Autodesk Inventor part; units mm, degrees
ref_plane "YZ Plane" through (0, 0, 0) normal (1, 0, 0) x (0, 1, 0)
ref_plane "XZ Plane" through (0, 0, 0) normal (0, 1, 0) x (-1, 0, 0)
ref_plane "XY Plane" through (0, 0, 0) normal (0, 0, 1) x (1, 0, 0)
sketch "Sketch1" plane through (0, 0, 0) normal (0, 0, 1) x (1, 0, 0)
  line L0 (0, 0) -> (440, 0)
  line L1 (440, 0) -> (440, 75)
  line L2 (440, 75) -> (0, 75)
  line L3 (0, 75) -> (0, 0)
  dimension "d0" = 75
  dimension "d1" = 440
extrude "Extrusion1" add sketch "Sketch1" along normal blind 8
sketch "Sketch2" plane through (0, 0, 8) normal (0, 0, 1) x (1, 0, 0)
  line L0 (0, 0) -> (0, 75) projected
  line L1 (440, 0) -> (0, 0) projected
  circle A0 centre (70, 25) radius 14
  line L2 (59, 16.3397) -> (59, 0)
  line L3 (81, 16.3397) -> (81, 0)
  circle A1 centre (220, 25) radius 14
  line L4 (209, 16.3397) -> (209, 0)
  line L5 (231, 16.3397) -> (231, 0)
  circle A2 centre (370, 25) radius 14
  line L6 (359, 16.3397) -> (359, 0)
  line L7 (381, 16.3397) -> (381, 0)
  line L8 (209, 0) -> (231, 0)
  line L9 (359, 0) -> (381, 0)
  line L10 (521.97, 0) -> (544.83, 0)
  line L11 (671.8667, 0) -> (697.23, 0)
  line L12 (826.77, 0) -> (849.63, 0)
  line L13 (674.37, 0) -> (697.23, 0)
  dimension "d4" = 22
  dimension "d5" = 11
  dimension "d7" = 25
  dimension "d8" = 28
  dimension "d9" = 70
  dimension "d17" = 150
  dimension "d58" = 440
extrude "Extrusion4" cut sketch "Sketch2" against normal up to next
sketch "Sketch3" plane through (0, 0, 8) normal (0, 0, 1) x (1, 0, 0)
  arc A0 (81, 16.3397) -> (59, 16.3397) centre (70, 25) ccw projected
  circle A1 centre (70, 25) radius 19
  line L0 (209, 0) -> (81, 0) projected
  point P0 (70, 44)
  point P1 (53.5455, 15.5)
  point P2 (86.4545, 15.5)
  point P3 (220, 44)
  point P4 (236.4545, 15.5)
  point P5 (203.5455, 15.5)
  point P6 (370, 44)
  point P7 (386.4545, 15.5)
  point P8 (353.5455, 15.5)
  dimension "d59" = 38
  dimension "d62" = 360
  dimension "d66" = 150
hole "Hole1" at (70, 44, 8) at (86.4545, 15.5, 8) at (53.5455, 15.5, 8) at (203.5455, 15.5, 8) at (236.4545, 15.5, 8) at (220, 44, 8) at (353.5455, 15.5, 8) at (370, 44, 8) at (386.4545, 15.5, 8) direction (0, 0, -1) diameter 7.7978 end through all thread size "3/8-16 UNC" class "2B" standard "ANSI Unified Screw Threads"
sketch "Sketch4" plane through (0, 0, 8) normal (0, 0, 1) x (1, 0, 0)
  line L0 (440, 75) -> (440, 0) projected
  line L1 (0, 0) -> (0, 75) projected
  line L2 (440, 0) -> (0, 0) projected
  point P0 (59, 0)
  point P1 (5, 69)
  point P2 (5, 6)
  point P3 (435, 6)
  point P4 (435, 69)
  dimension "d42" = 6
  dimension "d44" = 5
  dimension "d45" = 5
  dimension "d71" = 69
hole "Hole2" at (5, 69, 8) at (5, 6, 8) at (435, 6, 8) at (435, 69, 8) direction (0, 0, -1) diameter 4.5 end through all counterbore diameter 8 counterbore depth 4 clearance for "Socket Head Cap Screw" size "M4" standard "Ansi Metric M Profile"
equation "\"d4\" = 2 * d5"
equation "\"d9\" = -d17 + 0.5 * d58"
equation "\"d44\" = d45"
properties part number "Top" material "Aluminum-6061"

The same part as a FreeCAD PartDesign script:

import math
import FreeCAD as App
import Part
import Sketcher


def add_polygon(sketch, points):
    """Adds a closed chain of lines whose ends are joined by coincident constraints."""
    first, n = sketch.GeometryCount, len(points)
    for a, b in zip(points, points[1:] + points[:1]):
        sketch.addGeometry(Part.LineSegment(App.Vector(*a, 0), App.Vector(*b, 0)), False)
    for i in range(n):
        sketch.addConstraint(Sketcher.Constraint("Coincident", first + i, 2, first + (i + 1) % n, 1))

doc = App.newDocument("Part")
params = doc.addObject("Spreadsheet::Sheet", "Params")
for row, (alias, value) in enumerate([
    ("sketch1_width", "440 mm"),
    ("sketch1_height", "75 mm"),
    ("pad1_length", "8 mm"),
    ("sketch2_radius", "14 mm"),
    ("sketch2_width", "22 mm"),
    ("hole_diameter", "7.7978 mm"),
    ("sketch4_diameter", "4.5 mm"),
    ("hole2_diameter", "4.5 mm"),
    ("hole2_cbore_diameter", "8 mm"),
    ("hole2_cbore_depth", "4 mm"),
], start=1):
    params.set(f"A{row}", alias)
    params.set(f"B{row}", "=" + value)
    params.setAlias(f"B{row}", alias)

body = doc.addObject("PartDesign::Body", "Body")

sketch1 = body.newObject("Sketcher::SketchObject", "Sketch")
sketch1.AttachmentSupport = (doc.getObject("XY_Plane"), [""])
sketch1.MapMode = "FlatFace"
add_polygon(sketch1, [(0, 75), (0, 0), (440, 0), (440, 75)])
sketch1.addConstraint(Sketcher.Constraint("Vertical", 0))
sketch1.addConstraint(Sketcher.Constraint("Horizontal", 1))
sketch1.addConstraint(Sketcher.Constraint("Vertical", 2))
sketch1.addConstraint(Sketcher.Constraint("Horizontal", 3))
sketch1.addConstraint(Sketcher.Constraint("Coincident", 0, 2, -1, 1))
sketch1.addConstraint(Sketcher.Constraint("DistanceX", 1, 1, 1, 2, 440.0))
sketch1.addConstraint(Sketcher.Constraint("DistanceY", 0, 2, 0, 1, 75.0))
sketch1.setExpression("Constraints[9]", "Params.sketch1_width")
sketch1.setExpression("Constraints[10]", "Params.sketch1_height")
pad1 = body.newObject("PartDesign::Pad", "Pad")
pad1.Profile = sketch1
pad1.setExpression("Length", "Params.pad1_length")

sketch2 = body.newObject("Sketcher::SketchObject", "Sketch001")
sketch2.AttachmentSupport = (doc.getObject("XY_Plane"), [""])
sketch2.MapMode = "FlatFace"
sketch2.AttachmentOffset = App.Placement(App.Vector(0, 0, 8), App.Rotation())
sketch2.addGeometry(Part.LineSegment(App.Vector(59, 0, 0), App.Vector(81, 0, 0)), False)
sketch2.addGeometry(Part.LineSegment(App.Vector(81, 0, 0), App.Vector(81, 16, 0)), False)
sketch2.addGeometry(Part.ArcOfCircle(Part.Circle(App.Vector(70, 25, 0), App.Vector(0, 0, 1), 14), math.radians(-38), math.radians(218)), False)
sketch2.addGeometry(Part.LineSegment(App.Vector(59, 16, 0), App.Vector(59, 0, 0)), False)
sketch2.addGeometry(Part.LineSegment(App.Vector(209, 0, 0), App.Vector(231, 0, 0)), False)
sketch2.addGeometry(Part.LineSegment(App.Vector(231, 0, 0), App.Vector(231, 16, 0)), False)
sketch2.addGeometry(Part.ArcOfCircle(Part.Circle(App.Vector(220, 25, 0), App.Vector(0, 0, 1), 14), math.radians(-38), math.radians(218)), False)
sketch2.addGeometry(Part.LineSegment(App.Vector(209, 16, 0), App.Vector(209, 0, 0)), False)
sketch2.addGeometry(Part.LineSegment(App.Vector(359, 0, 0), App.Vector(381, 0, 0)), False)
sketch2.addGeometry(Part.LineSegment(App.Vector(381, 0, 0), App.Vector(381, 16, 0)), False)
sketch2.addGeometry(Part.ArcOfCircle(Part.Circle(App.Vector(370, 25, 0), App.Vector(0, 0, 1), 14), math.radians(-38), math.radians(218)), False)
sketch2.addGeometry(Part.LineSegment(App.Vector(359, 16, 0), App.Vector(359, 0, 0)), False)
sketch2.addConstraint(Sketcher.Constraint("Coincident", 0, 2, 1, 1))
sketch2.addConstraint(Sketcher.Constraint("Coincident", 1, 2, 2, 1))
sketch2.addConstraint(Sketcher.Constraint("Coincident", 2, 2, 3, 1))
sketch2.addConstraint(Sketcher.Constraint("Coincident", 3, 2, 0, 1))
sketch2.addConstraint(Sketcher.Constraint("Coincident", 4, 2, 5, 1))
sketch2.addConstraint(Sketcher.Constraint("Coincident", 5, 2, 6, 1))
sketch2.addConstraint(Sketcher.Constraint("Coincident", 6, 2, 7, 1))
sketch2.addConstraint(Sketcher.Constraint("Coincident", 7, 2, 4, 1))
sketch2.addConstraint(Sketcher.Constraint("Coincident", 8, 2, 9, 1))
sketch2.addConstraint(Sketcher.Constraint("Coincident", 9, 2, 10, 1))
sketch2.addConstraint(Sketcher.Constraint("Coincident", 10, 2, 11, 1))
sketch2.addConstraint(Sketcher.Constraint("Coincident", 11, 2, 8, 1))
sketch2.addConstraint(Sketcher.Constraint("Horizontal", 0))
sketch2.addConstraint(Sketcher.Constraint("Vertical", 1))
sketch2.addConstraint(Sketcher.Constraint("Vertical", 3))
sketch2.addConstraint(Sketcher.Constraint("Horizontal", 4))
sketch2.addConstraint(Sketcher.Constraint("Vertical", 5))
sketch2.addConstraint(Sketcher.Constraint("Vertical", 7))
sketch2.addConstraint(Sketcher.Constraint("Horizontal", 8))
sketch2.addConstraint(Sketcher.Constraint("Vertical", 9))
sketch2.addConstraint(Sketcher.Constraint("Vertical", 11))
sketch2.addConstraint(Sketcher.Constraint("Equal", 2, 6))
sketch2.addConstraint(Sketcher.Constraint("Equal", 6, 10))
sketch2.addConstraint(Sketcher.Constraint("PointOnObject", 0, 2, -1))
sketch2.addConstraint(Sketcher.Constraint("PointOnObject", 4, 2, -1))
sketch2.addConstraint(Sketcher.Constraint("PointOnObject", 8, 2, -1))
sketch2.addConstraint(Sketcher.Constraint("Horizontal", 2, 3, 6, 3))
sketch2.addConstraint(Sketcher.Constraint("Horizontal", 6, 3, 10, 3))
sketch2.addConstraint(Sketcher.Constraint("Horizontal", 1, 2, 2, 2))
sketch2.addConstraint(Sketcher.Constraint("Horizontal", 2, 2, 5, 2))
sketch2.addConstraint(Sketcher.Constraint("Horizontal", 5, 2, 6, 2))
sketch2.addConstraint(Sketcher.Constraint("Horizontal", 6, 2, 9, 2))
sketch2.addConstraint(Sketcher.Constraint("Horizontal", 9, 2, 10, 2))
sketch2.addConstraint(Sketcher.Constraint("Radius", 2, 14.0))
sketch2.addConstraint(Sketcher.Constraint("DistanceX", 0, 1, 0, 2, 22.0))
sketch2.addConstraint(Sketcher.Constraint("DistanceX", -1, 1, 2, 3, 70.0))
sketch2.addConstraint(Sketcher.Constraint("DistanceY", -1, 1, 2, 3, 25.0))
sketch2.addConstraint(Sketcher.Constraint("DistanceX", 2, 3, 6, 3, 150.0))
sketch2.addConstraint(Sketcher.Constraint("DistanceX", 6, 3, 10, 3, 150.0))
sketch2.setExpression("Constraints[33]", "Params.sketch2_radius")
sketch2.setExpression("Constraints[34]", "Params.sketch2_width")
pocket1 = body.newObject("PartDesign::Pocket", "Pocket")
pocket1.Profile = sketch2
pocket1.Type = "UpToFirst"

sketch3 = body.newObject("Sketcher::SketchObject", "Sketch002")
sketch3.AttachmentSupport = (doc.getObject("XY_Plane"), [""])
sketch3.MapMode = "FlatFace"
sketch3.AttachmentOffset = App.Placement(App.Vector(0, 0, 8), App.Rotation())
sketch3.addGeometry(Part.Circle(App.Vector(70, 44, 0), App.Vector(0, 0, 1), 3.9), False)
sketch3.addGeometry(Part.Circle(App.Vector(86.5, 15.5, 0), App.Vector(0, 0, 1), 3.9), False)
sketch3.addGeometry(Part.Circle(App.Vector(53.5, 15.5, 0), App.Vector(0, 0, 1), 3.9), False)
sketch3.addGeometry(Part.Circle(App.Vector(203.5, 15.5, 0), App.Vector(0, 0, 1), 3.9), False)
sketch3.addGeometry(Part.Circle(App.Vector(236.5, 15.5, 0), App.Vector(0, 0, 1), 3.9), False)
sketch3.addGeometry(Part.Circle(App.Vector(220, 44, 0), App.Vector(0, 0, 1), 3.9), False)
sketch3.addGeometry(Part.Circle(App.Vector(353.5, 15.5, 0), App.Vector(0, 0, 1), 3.9), False)
sketch3.addGeometry(Part.Circle(App.Vector(370, 44, 0), App.Vector(0, 0, 1), 3.9), False)
sketch3.addGeometry(Part.Circle(App.Vector(386.5, 15.5, 0), App.Vector(0, 0, 1), 3.9), False)
sketch3.addConstraint(Sketcher.Constraint("Equal", 0, 1))
sketch3.addConstraint(Sketcher.Constraint("Equal", 1, 2))
sketch3.addConstraint(Sketcher.Constraint("Equal", 2, 3))
sketch3.addConstraint(Sketcher.Constraint("Equal", 3, 4))
sketch3.addConstraint(Sketcher.Constraint("Equal", 4, 5))
sketch3.addConstraint(Sketcher.Constraint("Equal", 5, 6))
sketch3.addConstraint(Sketcher.Constraint("Equal", 6, 7))
sketch3.addConstraint(Sketcher.Constraint("Equal", 7, 8))
sketch3.addConstraint(Sketcher.Constraint("Horizontal", 1, 3, 2, 3))
sketch3.addConstraint(Sketcher.Constraint("Horizontal", 2, 3, 3, 3))
sketch3.addConstraint(Sketcher.Constraint("Horizontal", 3, 3, 4, 3))
sketch3.addConstraint(Sketcher.Constraint("Horizontal", 0, 3, 5, 3))
sketch3.addConstraint(Sketcher.Constraint("Horizontal", 4, 3, 6, 3))
sketch3.addConstraint(Sketcher.Constraint("Horizontal", 5, 3, 7, 3))
sketch3.addConstraint(Sketcher.Constraint("Horizontal", 6, 3, 8, 3))
sketch3.addConstraint(Sketcher.Constraint("DistanceX", -1, 1, 0, 3, 70.0))
sketch3.addConstraint(Sketcher.Constraint("DistanceY", -1, 1, 0, 3, 44.0))
sketch3.addConstraint(Sketcher.Constraint("DistanceX", -1, 1, 5, 3, 220.0))
sketch3.addConstraint(Sketcher.Constraint("DistanceX", -1, 1, 7, 3, 370.0))
sketch3.addConstraint(Sketcher.Constraint("DistanceX", 2, 3, 3, 3, 150.0))
sketch3.addConstraint(Sketcher.Constraint("DistanceX", 1, 3, 4, 3, 150.0))
sketch3.addConstraint(Sketcher.Constraint("DistanceX", 3, 3, 6, 3, 150.0))
sketch3.addConstraint(Sketcher.Constraint("DistanceX", 4, 3, 8, 3, 150.0))
sketch3.addConstraint(Sketcher.Constraint("Diameter", 0, 7.7978))
sketch3.addConstraint(Sketcher.Constraint("DistanceY", -1, 1, 1, 3, 15.5))
sketch3.addConstraint(Sketcher.Constraint("DistanceX", 2, 3, 1, 3, 32.909))
sketch3.addConstraint(Sketcher.Constraint("DistanceX", -1, 1, 1, 3, 86.4545))
doc.recompute()
hole = body.newObject("PartDesign::Hole", "Hole")
hole.Profile = sketch3
hole.ThreadType = "None"
hole.setExpression("Diameter", "Params.hole_diameter")
hole.DepthType = "ThroughAll"

sketch4 = body.newObject("Sketcher::SketchObject", "Sketch003")
sketch4.AttachmentSupport = (doc.getObject("XY_Plane"), [""])
sketch4.MapMode = "FlatFace"
sketch4.AttachmentOffset = App.Placement(App.Vector(0, 0, 8), App.Rotation())
sketch4.addGeometry(Part.Circle(App.Vector(5, 69, 0), App.Vector(0, 0, 1), 2.2), False)
sketch4.addGeometry(Part.Circle(App.Vector(5, 6, 0), App.Vector(0, 0, 1), 2.2), False)
sketch4.addGeometry(Part.Circle(App.Vector(435, 6, 0), App.Vector(0, 0, 1), 2.2), False)
sketch4.addGeometry(Part.Circle(App.Vector(435, 69, 0), App.Vector(0, 0, 1), 2.2), False)
sketch4.addConstraint(Sketcher.Constraint("Equal", 0, 1))
sketch4.addConstraint(Sketcher.Constraint("Equal", 1, 2))
sketch4.addConstraint(Sketcher.Constraint("Equal", 2, 3))
sketch4.addConstraint(Sketcher.Constraint("Horizontal", 1, 3, 2, 3))
sketch4.addConstraint(Sketcher.Constraint("Horizontal", 0, 3, 3, 3))
sketch4.addConstraint(Sketcher.Constraint("Vertical", 0, 3, 1, 3))
sketch4.addConstraint(Sketcher.Constraint("Vertical", 2, 3, 3, 3))
sketch4.addConstraint(Sketcher.Constraint("Diameter", 0, 4.5))
sketch4.addConstraint(Sketcher.Constraint("DistanceX", -1, 1, 0, 3, 5.0))
sketch4.addConstraint(Sketcher.Constraint("DistanceY", -1, 1, 0, 3, 69.0))
sketch4.addConstraint(Sketcher.Constraint("DistanceY", -1, 1, 1, 3, 6.0))
sketch4.addConstraint(Sketcher.Constraint("DistanceX", -1, 1, 2, 3, 435.0))
sketch4.setExpression("Constraints[7]", "Params.sketch4_diameter")
doc.recompute()
hole2 = body.newObject("PartDesign::Hole", "Hole001")
hole2.Profile = sketch4
hole2.ThreadType = "None"
hole2.setExpression("Diameter", "Params.hole2_diameter")
hole2.DepthType = "ThroughAll"
hole2.HoleCutType = "Counterbore"
hole2.setExpression("HoleCutDiameter", "Params.hole2_cbore_diameter")
hole2.setExpression("HoleCutDepth", "Params.hole2_cbore_depth")

doc.recompute()
